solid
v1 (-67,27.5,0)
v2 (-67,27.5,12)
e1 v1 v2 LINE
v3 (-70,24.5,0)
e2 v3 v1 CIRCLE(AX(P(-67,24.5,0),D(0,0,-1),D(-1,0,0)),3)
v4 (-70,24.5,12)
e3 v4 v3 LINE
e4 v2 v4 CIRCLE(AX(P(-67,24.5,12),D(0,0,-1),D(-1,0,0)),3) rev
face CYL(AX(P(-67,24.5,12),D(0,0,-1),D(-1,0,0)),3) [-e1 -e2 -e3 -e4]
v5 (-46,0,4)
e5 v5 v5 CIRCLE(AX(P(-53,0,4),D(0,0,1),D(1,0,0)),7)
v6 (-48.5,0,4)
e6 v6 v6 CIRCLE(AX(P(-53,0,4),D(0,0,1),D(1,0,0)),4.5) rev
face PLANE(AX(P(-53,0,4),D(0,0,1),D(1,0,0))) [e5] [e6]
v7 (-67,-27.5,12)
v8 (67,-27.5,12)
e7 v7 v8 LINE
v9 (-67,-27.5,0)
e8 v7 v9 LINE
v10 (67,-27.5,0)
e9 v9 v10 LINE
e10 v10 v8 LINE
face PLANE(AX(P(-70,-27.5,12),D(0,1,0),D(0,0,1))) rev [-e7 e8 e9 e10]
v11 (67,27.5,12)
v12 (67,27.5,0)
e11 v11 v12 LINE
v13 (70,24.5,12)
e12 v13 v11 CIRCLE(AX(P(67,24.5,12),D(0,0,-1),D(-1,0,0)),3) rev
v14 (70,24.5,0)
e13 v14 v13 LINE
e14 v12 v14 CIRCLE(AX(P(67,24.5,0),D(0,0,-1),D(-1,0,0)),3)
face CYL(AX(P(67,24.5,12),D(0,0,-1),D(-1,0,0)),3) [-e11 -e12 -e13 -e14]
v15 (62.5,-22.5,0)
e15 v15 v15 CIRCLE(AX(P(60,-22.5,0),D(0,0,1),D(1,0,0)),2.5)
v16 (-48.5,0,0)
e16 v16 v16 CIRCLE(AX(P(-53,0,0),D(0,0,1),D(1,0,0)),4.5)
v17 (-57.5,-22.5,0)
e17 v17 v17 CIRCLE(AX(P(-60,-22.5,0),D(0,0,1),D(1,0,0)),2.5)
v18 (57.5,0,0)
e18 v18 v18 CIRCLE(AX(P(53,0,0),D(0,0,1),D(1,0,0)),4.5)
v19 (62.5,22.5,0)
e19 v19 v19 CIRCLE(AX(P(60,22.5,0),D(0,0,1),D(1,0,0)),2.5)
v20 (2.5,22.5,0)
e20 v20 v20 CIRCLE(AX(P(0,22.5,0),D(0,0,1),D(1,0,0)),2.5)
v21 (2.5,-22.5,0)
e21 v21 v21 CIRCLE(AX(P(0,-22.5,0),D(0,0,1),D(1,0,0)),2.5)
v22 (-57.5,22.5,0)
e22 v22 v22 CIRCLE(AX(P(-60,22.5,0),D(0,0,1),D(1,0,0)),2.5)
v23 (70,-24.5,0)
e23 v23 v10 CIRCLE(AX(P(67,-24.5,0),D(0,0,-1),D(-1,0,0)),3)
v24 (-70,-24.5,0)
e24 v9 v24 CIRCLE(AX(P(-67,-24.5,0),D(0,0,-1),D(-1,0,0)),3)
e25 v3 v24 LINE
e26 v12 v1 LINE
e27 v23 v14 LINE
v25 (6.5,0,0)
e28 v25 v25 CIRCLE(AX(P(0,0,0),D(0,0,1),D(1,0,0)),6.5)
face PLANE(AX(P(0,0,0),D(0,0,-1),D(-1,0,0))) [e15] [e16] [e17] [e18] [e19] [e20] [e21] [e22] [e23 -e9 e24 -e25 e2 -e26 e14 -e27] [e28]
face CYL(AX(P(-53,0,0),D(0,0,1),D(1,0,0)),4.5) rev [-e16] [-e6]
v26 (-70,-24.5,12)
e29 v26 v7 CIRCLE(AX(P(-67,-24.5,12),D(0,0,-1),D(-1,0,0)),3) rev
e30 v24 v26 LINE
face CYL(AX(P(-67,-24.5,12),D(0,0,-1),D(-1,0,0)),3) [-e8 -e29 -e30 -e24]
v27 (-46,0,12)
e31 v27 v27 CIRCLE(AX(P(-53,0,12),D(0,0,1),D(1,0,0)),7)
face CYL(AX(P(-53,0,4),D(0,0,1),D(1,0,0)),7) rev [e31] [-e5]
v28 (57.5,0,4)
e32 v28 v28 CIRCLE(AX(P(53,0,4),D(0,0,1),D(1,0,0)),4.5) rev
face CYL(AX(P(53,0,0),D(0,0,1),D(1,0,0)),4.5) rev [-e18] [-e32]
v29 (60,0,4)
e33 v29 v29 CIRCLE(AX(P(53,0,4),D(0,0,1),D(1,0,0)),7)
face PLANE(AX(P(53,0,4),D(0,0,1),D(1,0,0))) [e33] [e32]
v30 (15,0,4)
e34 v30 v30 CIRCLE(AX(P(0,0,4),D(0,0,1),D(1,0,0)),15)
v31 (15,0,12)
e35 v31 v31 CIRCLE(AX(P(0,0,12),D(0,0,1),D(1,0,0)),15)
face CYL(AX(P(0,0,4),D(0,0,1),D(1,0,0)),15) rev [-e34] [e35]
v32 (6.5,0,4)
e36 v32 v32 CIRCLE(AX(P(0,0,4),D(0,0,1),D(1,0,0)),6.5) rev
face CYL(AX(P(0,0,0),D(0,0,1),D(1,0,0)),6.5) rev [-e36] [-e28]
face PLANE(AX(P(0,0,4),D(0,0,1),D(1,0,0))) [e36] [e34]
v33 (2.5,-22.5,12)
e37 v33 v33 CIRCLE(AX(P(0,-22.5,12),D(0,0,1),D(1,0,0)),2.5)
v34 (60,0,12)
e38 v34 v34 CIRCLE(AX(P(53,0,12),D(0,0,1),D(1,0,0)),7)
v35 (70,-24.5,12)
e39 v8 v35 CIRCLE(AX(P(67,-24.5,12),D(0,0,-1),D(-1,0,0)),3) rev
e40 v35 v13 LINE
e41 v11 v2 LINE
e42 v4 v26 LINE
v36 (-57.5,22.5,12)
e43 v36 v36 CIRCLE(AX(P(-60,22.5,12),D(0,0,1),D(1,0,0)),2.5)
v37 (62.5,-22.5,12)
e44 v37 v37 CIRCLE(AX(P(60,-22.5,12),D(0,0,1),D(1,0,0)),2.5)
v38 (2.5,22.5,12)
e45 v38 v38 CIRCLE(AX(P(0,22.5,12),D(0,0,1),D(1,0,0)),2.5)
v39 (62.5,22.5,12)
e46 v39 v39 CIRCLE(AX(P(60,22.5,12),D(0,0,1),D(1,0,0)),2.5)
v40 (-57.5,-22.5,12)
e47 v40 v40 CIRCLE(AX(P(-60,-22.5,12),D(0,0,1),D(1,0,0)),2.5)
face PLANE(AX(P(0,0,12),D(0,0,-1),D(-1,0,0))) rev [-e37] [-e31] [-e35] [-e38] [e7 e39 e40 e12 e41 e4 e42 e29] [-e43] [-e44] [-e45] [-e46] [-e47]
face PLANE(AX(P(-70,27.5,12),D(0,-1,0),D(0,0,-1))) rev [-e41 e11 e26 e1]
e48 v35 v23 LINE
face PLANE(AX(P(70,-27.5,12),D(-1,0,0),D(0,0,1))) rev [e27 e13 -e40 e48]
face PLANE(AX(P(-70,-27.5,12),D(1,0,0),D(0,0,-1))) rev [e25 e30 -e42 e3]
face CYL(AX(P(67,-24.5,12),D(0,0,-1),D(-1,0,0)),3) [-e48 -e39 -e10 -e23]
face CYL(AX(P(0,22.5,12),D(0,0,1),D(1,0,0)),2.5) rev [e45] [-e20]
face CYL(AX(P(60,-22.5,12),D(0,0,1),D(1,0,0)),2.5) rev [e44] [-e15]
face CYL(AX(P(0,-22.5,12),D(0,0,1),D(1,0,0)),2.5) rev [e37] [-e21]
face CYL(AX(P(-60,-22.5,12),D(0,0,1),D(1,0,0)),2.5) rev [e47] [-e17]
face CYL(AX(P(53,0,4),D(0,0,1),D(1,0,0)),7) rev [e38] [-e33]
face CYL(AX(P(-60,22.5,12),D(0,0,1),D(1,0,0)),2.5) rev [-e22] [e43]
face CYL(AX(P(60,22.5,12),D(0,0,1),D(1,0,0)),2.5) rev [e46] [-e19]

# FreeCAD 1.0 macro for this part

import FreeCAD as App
import Part
import Sketcher
Q = App.Units.Quantity


def edges_at(feature, points):
    """Names of the edges that pass closest to the given points."""
    edges = feature.Shape.Edges
    near = lambda p: min(range(len(edges)), key=lambda i: edges[i].distToShape(Part.Vertex(*p))[0])
    return sorted({f"Edge{near(p) + 1}" for p in points})

doc = App.newDocument("Part")
body = doc.addObject("PartDesign::Body", "Body")

# Sketch on XY plane
sketch1 = doc.addObject("Sketcher::SketchObject", "Sketch")
body.addObject(sketch1)
sketch1.AttachmentSupport = (doc.XY_Plane, [""])
sketch1.MapMode = "FlatFace"
sketch1.addGeometry([
    Part.LineSegment(App.Vector(-70, 28, 0), App.Vector(-70, -28, 0)),
    Part.LineSegment(App.Vector(-70, -28, 0), App.Vector(70, -28, 0)),
    Part.LineSegment(App.Vector(70, -28, 0), App.Vector(70, 28, 0)),
    Part.LineSegment(App.Vector(70, 28, 0), App.Vector(-70, 28, 0)),
], False)
sketch1.addConstraint([
    Sketcher.Constraint("Coincident", 0, 2, 1, 1),
    Sketcher.Constraint("Coincident", 1, 2, 2, 1),
    Sketcher.Constraint("Coincident", 2, 2, 3, 1),
    Sketcher.Constraint("Coincident", 3, 2, 0, 1),
    Sketcher.Constraint("Vertical", 0),
    Sketcher.Constraint("Horizontal", 1),
    Sketcher.Constraint("Vertical", 2),
    Sketcher.Constraint("Horizontal", 3),
    Sketcher.Constraint("Symmetric", 0, 2, 2, 2, -1, 1),
    Sketcher.Constraint("DistanceX", 1, 1, 1, 2, Q("140 mm")),
    Sketcher.Constraint("DistanceY", 0, 2, 0, 1, Q("55 mm")),
])
pad1 = doc.addObject("PartDesign::Pad", "Pad")
body.addObject(pad1)
pad1.Profile = sketch1
pad1.Length = 12

# Sketch on XY plane
sketch2 = doc.addObject("Sketcher::SketchObject", "Sketch001")
body.addObject(sketch2)
sketch2.AttachmentSupport = (doc.XY_Plane, [""])
sketch2.MapMode = "FlatFace"
sketch2.AttachmentOffset = App.Placement(App.Vector(0, 0, 12), App.Rotation())
sketch2.addGeometry([
    Part.Circle(App.Vector(0, 0, 0), App.Vector(0, 0, 1), 6.5),
    Part.Circle(App.Vector(-53, 0, 0), App.Vector(0, 0, 1), 4.5),
    Part.Circle(App.Vector(53, 0, 0), App.Vector(0, 0, 1), 4.5),
], False)
sketch2.addConstraint([
    Sketcher.Constraint("Coincident", 0, 3, -1, 1),
    Sketcher.Constraint("Equal", 1, 2),
    Sketcher.Constraint("Symmetric", 1, 3, 2, 3, -1, 1),
    Sketcher.Constraint("PointOnObject", 1, 3, -1),
    Sketcher.Constraint("Diameter", 0, Q("13 mm")),
    Sketcher.Constraint("Diameter", 1, Q("9 mm")),
    Sketcher.Constraint("DistanceX", 1, 3, -1, 1, Q("53 mm")),
])
pocket1 = doc.addObject("PartDesign::Pocket", "Pocket")
body.addObject(pocket1)
pocket1.Profile = sketch2
pocket1.Type = "ThroughAll"
doc.recompute()

fillet = doc.addObject("PartDesign::Fillet", "Fillet")
body.addObject(fillet)
fillet.Base = (pocket1, edges_at(pocket1, [
    (70, -27.5, 6),
    (-70, -27.5, 6),
    (-70, 27.5, 6),
    (70, 27.5, 6),
]))
fillet.Radius = 3

# Sketch on XY plane
sketch3 = doc.addObject("Sketcher::SketchObject", "Sketch002")
body.addObject(sketch3)
sketch3.AttachmentSupport = (doc.XY_Plane, [""])
sketch3.MapMode = "FlatFace"
sketch3.AttachmentOffset = App.Placement(App.Vector(0, 0, 12), App.Rotation())
sketch3.addGeometry([
    Part.Circle(App.Vector(-53, 0, 0), App.Vector(0, 0, 1), 7),
    Part.Circle(App.Vector(53, 0, 0), App.Vector(0, 0, 1), 7),
], False)
sketch3.addConstraint([
    Sketcher.Constraint("Equal", 0, 1),
    Sketcher.Constraint("Symmetric", 0, 3, 1, 3, -1, 1),
    Sketcher.Constraint("PointOnObject", 0, 3, -1),
    Sketcher.Constraint("Diameter", 0, Q("14 mm")),
    Sketcher.Constraint("DistanceX", 0, 3, -1, 1, Q("53 mm")),
])
pocket2 = doc.addObject("PartDesign::Pocket", "Pocket001")
body.addObject(pocket2)
pocket2.Profile = sketch3
pocket2.Length = 8

# Sketch on XY plane
sketch4 = doc.addObject("Sketcher::SketchObject", "Sketch003")
body.addObject(sketch4)
sketch4.AttachmentSupport = (doc.XY_Plane, [""])
sketch4.MapMode = "FlatFace"
sketch4.AttachmentOffset = App.Placement(App.Vector(0, 0, 12), App.Rotation())
sketch4.addGeometry(Part.Circle(App.Vector(0, 0, 0), App.Vector(0, 0, 1), 15), False)
sketch4.addConstraint([
    Sketcher.Constraint("Coincident", 0, 3, -1, 1),
    Sketcher.Constraint("Diameter", 0, Q("30 mm")),
])
pocket3 = doc.addObject("PartDesign::Pocket", "Pocket002")
body.addObject(pocket3)
pocket3.Profile = sketch4
pocket3.Length = 8

# Sketch on XY plane
sketch5 = doc.addObject("Sketcher::SketchObject", "Sketch004")
body.addObject(sketch5)
sketch5.AttachmentSupport = (doc.XY_Plane, [""])
sketch5.MapMode = "FlatFace"
sketch5.AttachmentOffset = App.Placement(App.Vector(0, 0, 12), App.Rotation())
sketch5.addGeometry([
    Part.Circle(App.Vector(-60, 22.5, 0), App.Vector(0, 0, 1), 2.5),  # 0
    Part.Circle(App.Vector(-60, -22.5, 0), App.Vector(0, 0, 1), 2.5),  # 1
    Part.Circle(App.Vector(0, -22.5, 0), App.Vector(0, 0, 1), 2.5),  # 2
    Part.Circle(App.Vector(0, 22.5, 0), App.Vector(0, 0, 1), 2.5),  # 3
    Part.Circle(App.Vector(60, 22.5, 0), App.Vector(0, 0, 1), 2.5),  # 4
    Part.Circle(App.Vector(60, -22.5, 0), App.Vector(0, 0, 1), 2.5),  # 5
], False)
sketch5.addConstraint([
    Sketcher.Constraint("Equal", 0, 1),
    Sketcher.Constraint("Equal", 1, 2),
    Sketcher.Constraint("Equal", 2, 3),
    Sketcher.Constraint("Equal", 3, 4),
    Sketcher.Constraint("Equal", 4, 5),
    Sketcher.Constraint("Symmetric", 2, 3, 3, 3, -1, 1),
    Sketcher.Constraint("Symmetric", 1, 3, 4, 3, -1, 1),
    Sketcher.Constraint("Symmetric", 0, 3, 5, 3, -1, 1),
    Sketcher.Constraint("Symmetric", 0, 3, 4, 3, -2),
    Sketcher.Constraint("PointOnObject", 2, 3, -2),
    Sketcher.Constraint("Horizontal", 1, 3, 2, 3),
    Sketcher.Constraint("Diameter", 0, Q("5 mm")),
    Sketcher.Constraint("DistanceX", 0, 3, -1, 1, Q("60 mm")),
    Sketcher.Constraint("DistanceY", 1, 3, 0, 3, Q("45 mm")),
])
doc.recompute()
hole = doc.addObject("PartDesign::Hole", "Hole")
body.addObject(hole)
hole.Profile = sketch5
hole.ThreadType = "None"
hole.Diameter = 5
hole.DepthType = "ThroughAll"

doc.recompute()
